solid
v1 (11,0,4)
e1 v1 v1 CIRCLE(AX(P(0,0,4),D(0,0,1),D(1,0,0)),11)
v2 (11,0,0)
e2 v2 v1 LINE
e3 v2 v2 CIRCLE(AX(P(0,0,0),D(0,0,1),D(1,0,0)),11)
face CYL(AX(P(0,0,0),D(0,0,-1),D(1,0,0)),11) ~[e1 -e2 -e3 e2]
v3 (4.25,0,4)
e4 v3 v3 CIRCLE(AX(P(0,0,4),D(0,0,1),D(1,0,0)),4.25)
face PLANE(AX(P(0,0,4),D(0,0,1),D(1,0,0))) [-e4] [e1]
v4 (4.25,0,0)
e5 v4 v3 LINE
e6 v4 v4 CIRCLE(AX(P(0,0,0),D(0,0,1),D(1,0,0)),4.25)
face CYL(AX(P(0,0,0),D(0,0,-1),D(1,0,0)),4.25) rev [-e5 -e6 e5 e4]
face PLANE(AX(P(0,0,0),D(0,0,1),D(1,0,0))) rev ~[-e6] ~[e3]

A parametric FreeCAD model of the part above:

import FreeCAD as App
import Part
import Sketcher

V = App.Vector

doc = App.newDocument("Part")
params = doc.addObject("Spreadsheet::Sheet", "Params")
for row, (alias, value) in enumerate([
    ("sketch1_diameter", "22 mm"),
    ("sketch1_diameter2", "8.5 mm"),
    ("pad1_length", "4 mm"),
], start=1):
    params.set(f"A{row}", alias)
    params.set(f"B{row}", "=" + value)
    params.setAlias(f"B{row}", alias)

body = doc.addObject("PartDesign::Body", "Body")

# Sketch on XY plane
sketch1 = doc.addObject("Sketcher::SketchObject", "Sketch")
body.addObject(sketch1)
sketch1.AttachmentSupport = (doc.XY_Plane, [""])
sketch1.MapMode = "FlatFace"
sketch1.addGeometry([
    Part.Circle(V(0, 0, 0), V(0, 0, 1), 11),
    Part.Circle(V(0, 0, 0), V(0, 0, 1), 4.2),
], False)
sketch1.addConstraint([
    Sketcher.Constraint("Coincident", 0, 3, -1, 1),
    Sketcher.Constraint("Coincident", 1, 3, -1, 1),
    Sketcher.Constraint("Diameter", 0, 22.0),
    Sketcher.Constraint("Diameter", 1, 8.5),
])
sketch1.setExpression("Constraints[2]", "Params.sketch1_diameter")
sketch1.setExpression("Constraints[3]", "Params.sketch1_diameter2")
pad1 = doc.addObject("PartDesign::Pad", "Pad")
body.addObject(pad1)
pad1.Profile = sketch1
pad1.setExpression("Length", "Params.pad1_length")

doc.recompute()
